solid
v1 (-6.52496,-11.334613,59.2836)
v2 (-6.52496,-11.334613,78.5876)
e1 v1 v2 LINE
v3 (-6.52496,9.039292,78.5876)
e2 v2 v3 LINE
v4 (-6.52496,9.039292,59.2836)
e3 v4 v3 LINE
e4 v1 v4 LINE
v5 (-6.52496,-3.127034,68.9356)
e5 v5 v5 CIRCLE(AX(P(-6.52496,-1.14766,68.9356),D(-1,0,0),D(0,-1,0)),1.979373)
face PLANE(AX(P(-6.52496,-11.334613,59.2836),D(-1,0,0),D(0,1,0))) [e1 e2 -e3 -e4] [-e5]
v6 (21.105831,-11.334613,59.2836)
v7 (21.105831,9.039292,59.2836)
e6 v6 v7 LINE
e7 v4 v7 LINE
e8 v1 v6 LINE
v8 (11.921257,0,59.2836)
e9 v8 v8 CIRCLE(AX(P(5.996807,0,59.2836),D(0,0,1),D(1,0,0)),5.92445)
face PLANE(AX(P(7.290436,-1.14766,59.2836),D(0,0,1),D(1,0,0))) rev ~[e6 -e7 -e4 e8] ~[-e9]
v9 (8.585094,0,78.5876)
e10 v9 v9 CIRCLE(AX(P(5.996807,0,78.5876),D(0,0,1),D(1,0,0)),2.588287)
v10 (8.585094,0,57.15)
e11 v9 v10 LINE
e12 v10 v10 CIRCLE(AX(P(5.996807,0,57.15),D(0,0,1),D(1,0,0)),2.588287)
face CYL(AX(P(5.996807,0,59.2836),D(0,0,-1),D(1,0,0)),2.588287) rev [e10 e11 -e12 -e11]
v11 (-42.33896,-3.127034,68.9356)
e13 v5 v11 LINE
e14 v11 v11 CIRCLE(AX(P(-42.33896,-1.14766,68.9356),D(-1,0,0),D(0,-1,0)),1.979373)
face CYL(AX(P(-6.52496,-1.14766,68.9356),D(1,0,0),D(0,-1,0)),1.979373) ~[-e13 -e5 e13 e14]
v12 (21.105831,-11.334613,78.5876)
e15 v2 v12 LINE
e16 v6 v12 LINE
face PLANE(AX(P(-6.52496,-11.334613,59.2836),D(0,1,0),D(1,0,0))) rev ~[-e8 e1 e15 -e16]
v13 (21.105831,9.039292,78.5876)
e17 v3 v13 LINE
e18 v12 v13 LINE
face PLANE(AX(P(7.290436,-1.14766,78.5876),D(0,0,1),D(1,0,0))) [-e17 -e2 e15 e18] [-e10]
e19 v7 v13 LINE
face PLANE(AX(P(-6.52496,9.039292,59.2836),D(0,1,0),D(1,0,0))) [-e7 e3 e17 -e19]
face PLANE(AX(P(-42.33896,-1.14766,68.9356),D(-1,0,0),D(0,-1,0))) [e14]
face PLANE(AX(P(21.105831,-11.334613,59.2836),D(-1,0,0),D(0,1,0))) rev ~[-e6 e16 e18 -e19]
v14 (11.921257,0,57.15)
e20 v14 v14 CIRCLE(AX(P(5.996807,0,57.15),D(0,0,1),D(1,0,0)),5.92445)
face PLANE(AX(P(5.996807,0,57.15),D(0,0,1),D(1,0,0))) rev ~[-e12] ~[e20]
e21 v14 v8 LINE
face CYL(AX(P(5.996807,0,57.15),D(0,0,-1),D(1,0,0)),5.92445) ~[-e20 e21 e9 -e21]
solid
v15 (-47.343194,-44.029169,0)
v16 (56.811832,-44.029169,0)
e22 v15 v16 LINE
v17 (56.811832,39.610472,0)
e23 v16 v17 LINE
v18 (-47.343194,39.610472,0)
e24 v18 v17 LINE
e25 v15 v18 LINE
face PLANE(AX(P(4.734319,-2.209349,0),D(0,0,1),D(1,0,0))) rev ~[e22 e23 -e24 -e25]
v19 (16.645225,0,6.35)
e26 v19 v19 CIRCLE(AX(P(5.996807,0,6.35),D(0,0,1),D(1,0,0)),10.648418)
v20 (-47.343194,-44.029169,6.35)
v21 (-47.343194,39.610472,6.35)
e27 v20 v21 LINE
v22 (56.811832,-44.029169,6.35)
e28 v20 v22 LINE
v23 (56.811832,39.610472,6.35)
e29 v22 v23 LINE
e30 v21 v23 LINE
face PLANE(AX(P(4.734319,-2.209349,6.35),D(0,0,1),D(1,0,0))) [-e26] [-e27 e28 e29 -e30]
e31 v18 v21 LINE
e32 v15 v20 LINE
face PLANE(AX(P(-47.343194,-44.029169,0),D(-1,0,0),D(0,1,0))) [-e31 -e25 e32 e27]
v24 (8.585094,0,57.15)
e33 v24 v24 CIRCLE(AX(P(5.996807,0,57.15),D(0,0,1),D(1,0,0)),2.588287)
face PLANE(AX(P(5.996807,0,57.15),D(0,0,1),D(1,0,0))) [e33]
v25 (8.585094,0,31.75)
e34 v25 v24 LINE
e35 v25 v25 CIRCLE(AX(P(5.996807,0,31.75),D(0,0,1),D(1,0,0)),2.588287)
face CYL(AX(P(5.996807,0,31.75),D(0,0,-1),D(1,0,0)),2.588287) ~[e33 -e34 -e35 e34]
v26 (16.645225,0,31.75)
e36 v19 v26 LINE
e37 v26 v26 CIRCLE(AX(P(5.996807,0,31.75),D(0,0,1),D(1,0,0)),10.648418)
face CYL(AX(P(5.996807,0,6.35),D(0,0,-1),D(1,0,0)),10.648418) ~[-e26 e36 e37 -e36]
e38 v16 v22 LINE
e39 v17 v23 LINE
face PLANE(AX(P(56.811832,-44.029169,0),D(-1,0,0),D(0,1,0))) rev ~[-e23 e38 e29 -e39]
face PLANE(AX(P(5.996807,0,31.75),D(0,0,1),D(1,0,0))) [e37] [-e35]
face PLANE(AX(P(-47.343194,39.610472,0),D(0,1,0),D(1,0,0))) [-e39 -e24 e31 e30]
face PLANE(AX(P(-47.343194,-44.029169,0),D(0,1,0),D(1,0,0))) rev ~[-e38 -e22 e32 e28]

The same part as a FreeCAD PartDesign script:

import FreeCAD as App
import Part
import Sketcher
Q = App.Units.Quantity

doc = App.newDocument("Part")
params = doc.addObject("Spreadsheet::Sheet", "Params")
for row, (alias, value) in enumerate([
    ("pad1_length", "0.25 in"),
    ("pad2_length", "1 in"),
    ("pad3_length", "1 in"),
    ("pad4_length", "0.084 in"),
    ("pad5_length", "0.76 in"),
    ("pad6_length", "1.41 in"),
], start=1):
    params.set(f"A{row}", alias)
    params.set(f"B{row}", "=" + value)
    params.setAlias(f"B{row}", alias)

body = doc.addObject("PartDesign::Body", "Body")

sketch1 = body.newObject("Sketcher::SketchObject", "Sketch")
sketch1.AttachmentSupport = (doc.getObject("XY_Plane"), [""])
sketch1.MapMode = "FlatFace"
sketch1.addGeometry(Part.LineSegment(App.Vector(-47, 40, 0), App.Vector(-47, -44, 0)), False)
sketch1.addGeometry(Part.LineSegment(App.Vector(-47, -44, 0), App.Vector(57, -44, 0)), False)
sketch1.addGeometry(Part.LineSegment(App.Vector(57, -44, 0), App.Vector(57, 40, 0)), False)
sketch1.addGeometry(Part.LineSegment(App.Vector(57, 40, 0), App.Vector(-47, 40, 0)), False)
sketch1.addConstraint(Sketcher.Constraint("Coincident", 0, 2, 1, 1))
sketch1.addConstraint(Sketcher.Constraint("Coincident", 1, 2, 2, 1))
sketch1.addConstraint(Sketcher.Constraint("Coincident", 2, 2, 3, 1))
sketch1.addConstraint(Sketcher.Constraint("Coincident", 3, 2, 0, 1))
sketch1.addConstraint(Sketcher.Constraint("Vertical", 0))
sketch1.addConstraint(Sketcher.Constraint("Horizontal", 1))
sketch1.addConstraint(Sketcher.Constraint("Vertical", 2))
sketch1.addConstraint(Sketcher.Constraint("Horizontal", 3))
sketch1.addConstraint(Sketcher.Constraint("DistanceY", 0, 2, 0, 1, Q("83.63964 mm")))
sketch1.addConstraint(Sketcher.Constraint("DistanceX", 1, 1, 1, 2, Q("104.155026 mm")))
sketch1.addConstraint(Sketcher.Constraint("DistanceY", 0, 2, -1, 1, Q("44.029169 mm")))
sketch1.addConstraint(Sketcher.Constraint("DistanceX", -1, 1, 1, 2, Q("56.811832 mm")))
pad1 = body.newObject("PartDesign::Pad", "Pad")
pad1.Profile = sketch1
pad1.setExpression("Length", "Params.pad1_length")

sketch2 = body.newObject("Sketcher::SketchObject", "Sketch001")
sketch2.AttachmentSupport = (doc.getObject("XY_Plane"), [""])
sketch2.MapMode = "FlatFace"
sketch2.AttachmentOffset = App.Placement(App.Vector(0, 0, 0.25 * 25.4), App.Rotation())
sketch2.addGeometry(Part.Circle(App.Vector(6, 0, 0), App.Vector(0, 0, 1), 11), False)
sketch2.addConstraint(Sketcher.Constraint("PointOnObject", 0, 3, -1))
sketch2.addConstraint(Sketcher.Constraint("Diameter", 0, Q("21.296836 mm")))
sketch2.addConstraint(Sketcher.Constraint("DistanceX", -1, 1, 0, 3, Q("5.996807 mm")))
pad2 = body.newObject("PartDesign::Pad", "Pad001")
pad2.Profile = sketch2
pad2.setExpression("Length", "Params.pad2_length")

sketch3 = body.newObject("Sketcher::SketchObject", "Sketch002")
sketch3.AttachmentSupport = (doc.getObject("XY_Plane"), [""])
sketch3.MapMode = "FlatFace"
sketch3.AttachmentOffset = App.Placement(App.Vector(0, 0, 1.25 * 25.4), App.Rotation())
sketch3.addGeometry(Part.Circle(App.Vector(6, 0, 0), App.Vector(0, 0, 1), 2.6), False)
sketch3.addConstraint(Sketcher.Constraint("PointOnObject", 0, 3, -1))
sketch3.addConstraint(Sketcher.Constraint("Diameter", 0, Q("5.176574 mm")))
sketch3.addConstraint(Sketcher.Constraint("DistanceX", -1, 1, 0, 3, Q("5.996807 mm")))
pad3 = body.newObject("PartDesign::Pad", "Pad002")
pad3.Profile = sketch3
pad3.setExpression("Length", "Params.pad3_length")
body2 = doc.addObject("PartDesign::Body", "Body001")

sketch4 = body2.newObject("Sketcher::SketchObject", "Sketch003")
sketch4.AttachmentSupport = (doc.getObject("XY_Plane001"), [""])
sketch4.MapMode = "FlatFace"
sketch4.AttachmentOffset = App.Placement(App.Vector(0, 0, 2.25 * 25.4), App.Rotation())
sketch4.addGeometry(Part.Circle(App.Vector(6, 0, 0), App.Vector(0, 0, 1), 5.9), False)
sketch4.addGeometry(Part.Circle(App.Vector(6, 0, 0), App.Vector(0, 0, 1), 2.6), False)
sketch4.addConstraint(Sketcher.Constraint("Coincident", 1, 3, 0, 3))
sketch4.addConstraint(Sketcher.Constraint("PointOnObject", 0, 3, -1))
sketch4.addConstraint(Sketcher.Constraint("Diameter", 0, Q("11.848901 mm")))
sketch4.addConstraint(Sketcher.Constraint("Diameter", 1, Q("5.176574 mm")))
sketch4.addConstraint(Sketcher.Constraint("DistanceX", -1, 1, 0, 3, Q("5.996807 mm")))
pad4 = body2.newObject("PartDesign::Pad", "Pad003")
pad4.Profile = sketch4
pad4.setExpression("Length", "Params.pad4_length")

sketch5 = body2.newObject("Sketcher::SketchObject", "Sketch004")
sketch5.AttachmentSupport = (doc.getObject("XY_Plane001"), [""])
sketch5.MapMode = "FlatFace"
sketch5.AttachmentOffset = App.Placement(App.Vector(0, 0, 2.334 * 25.4), App.Rotation())
sketch5.addGeometry(Part.LineSegment(App.Vector(-6.5, 9, 0), App.Vector(-6.5, -11.3, 0)), False)
sketch5.addGeometry(Part.LineSegment(App.Vector(-6.5, -11.3, 0), App.Vector(21.1, -11.3, 0)), False)
sketch5.addGeometry(Part.LineSegment(App.Vector(21.1, -11.3, 0), App.Vector(21.1, 9, 0)), False)
sketch5.addGeometry(Part.LineSegment(App.Vector(21.1, 9, 0), App.Vector(-6.5, 9, 0)), False)
sketch5.addGeometry(Part.Circle(App.Vector(6, 0, 0), App.Vector(0, 0, 1), 2.6), False)
sketch5.addConstraint(Sketcher.Constraint("Coincident", 0, 2, 1, 1))
sketch5.addConstraint(Sketcher.Constraint("Coincident", 1, 2, 2, 1))
sketch5.addConstraint(Sketcher.Constraint("Coincident", 2, 2, 3, 1))
sketch5.addConstraint(Sketcher.Constraint("Coincident", 3, 2, 0, 1))
sketch5.addConstraint(Sketcher.Constraint("Vertical", 0))
sketch5.addConstraint(Sketcher.Constraint("Horizontal", 1))
sketch5.addConstraint(Sketcher.Constraint("Vertical", 2))
sketch5.addConstraint(Sketcher.Constraint("Horizontal", 3))
sketch5.addConstraint(Sketcher.Constraint("PointOnObject", 4, 3, -1))
sketch5.addConstraint(Sketcher.Constraint("Diameter", 4, Q("5.176574 mm")))
sketch5.addConstraint(Sketcher.Constraint("DistanceX", 1, 1, 1, 2, Q("27.630792 mm")))
sketch5.addConstraint(Sketcher.Constraint("DistanceY", 0, 2, 0, 1, Q("20.373905 mm")))
sketch5.addConstraint(Sketcher.Constraint("DistanceX", 0, 2, -1, 1, Q("6.52496 mm")))
sketch5.addConstraint(Sketcher.Constraint("DistanceX", -1, 1, 4, 3, Q("5.996807 mm")))
sketch5.addConstraint(Sketcher.Constraint("DistanceY", 0, 2, -1, 1, Q("11.334613 mm")))
pad5 = body2.newObject("PartDesign::Pad", "Pad004")
pad5.Profile = sketch5
pad5.setExpression("Length", "Params.pad5_length")

sketch6 = body2.newObject("Sketcher::SketchObject", "Sketch005")
sketch6.AttachmentSupport = (doc.getObject("YZ_Plane001"), [""])
sketch6.MapMode = "FlatFace"
sketch6.AttachmentOffset = App.Placement(App.Vector(0, 0, -6.52496), App.Rotation())
sketch6.addGeometry(Part.Circle(App.Vector(-1.1, 68.9, 0), App.Vector(0, 0, 1), 2), False)
sketch6.addConstraint(Sketcher.Constraint("DistanceY", -1, 1, 0, 3, Q("2.714 in")))
sketch6.addConstraint(Sketcher.Constraint("Diameter", 0, Q("3.958746 mm")))
sketch6.addConstraint(Sketcher.Constraint("DistanceX", 0, 3, -1, 1, Q("1.14766 mm")))
pad6 = body2.newObject("PartDesign::Pad", "Pad005")
pad6.Profile = sketch6
pad6.setExpression("Length", "Params.pad6_length")
pad6.Reversed = True

doc.recompute()
